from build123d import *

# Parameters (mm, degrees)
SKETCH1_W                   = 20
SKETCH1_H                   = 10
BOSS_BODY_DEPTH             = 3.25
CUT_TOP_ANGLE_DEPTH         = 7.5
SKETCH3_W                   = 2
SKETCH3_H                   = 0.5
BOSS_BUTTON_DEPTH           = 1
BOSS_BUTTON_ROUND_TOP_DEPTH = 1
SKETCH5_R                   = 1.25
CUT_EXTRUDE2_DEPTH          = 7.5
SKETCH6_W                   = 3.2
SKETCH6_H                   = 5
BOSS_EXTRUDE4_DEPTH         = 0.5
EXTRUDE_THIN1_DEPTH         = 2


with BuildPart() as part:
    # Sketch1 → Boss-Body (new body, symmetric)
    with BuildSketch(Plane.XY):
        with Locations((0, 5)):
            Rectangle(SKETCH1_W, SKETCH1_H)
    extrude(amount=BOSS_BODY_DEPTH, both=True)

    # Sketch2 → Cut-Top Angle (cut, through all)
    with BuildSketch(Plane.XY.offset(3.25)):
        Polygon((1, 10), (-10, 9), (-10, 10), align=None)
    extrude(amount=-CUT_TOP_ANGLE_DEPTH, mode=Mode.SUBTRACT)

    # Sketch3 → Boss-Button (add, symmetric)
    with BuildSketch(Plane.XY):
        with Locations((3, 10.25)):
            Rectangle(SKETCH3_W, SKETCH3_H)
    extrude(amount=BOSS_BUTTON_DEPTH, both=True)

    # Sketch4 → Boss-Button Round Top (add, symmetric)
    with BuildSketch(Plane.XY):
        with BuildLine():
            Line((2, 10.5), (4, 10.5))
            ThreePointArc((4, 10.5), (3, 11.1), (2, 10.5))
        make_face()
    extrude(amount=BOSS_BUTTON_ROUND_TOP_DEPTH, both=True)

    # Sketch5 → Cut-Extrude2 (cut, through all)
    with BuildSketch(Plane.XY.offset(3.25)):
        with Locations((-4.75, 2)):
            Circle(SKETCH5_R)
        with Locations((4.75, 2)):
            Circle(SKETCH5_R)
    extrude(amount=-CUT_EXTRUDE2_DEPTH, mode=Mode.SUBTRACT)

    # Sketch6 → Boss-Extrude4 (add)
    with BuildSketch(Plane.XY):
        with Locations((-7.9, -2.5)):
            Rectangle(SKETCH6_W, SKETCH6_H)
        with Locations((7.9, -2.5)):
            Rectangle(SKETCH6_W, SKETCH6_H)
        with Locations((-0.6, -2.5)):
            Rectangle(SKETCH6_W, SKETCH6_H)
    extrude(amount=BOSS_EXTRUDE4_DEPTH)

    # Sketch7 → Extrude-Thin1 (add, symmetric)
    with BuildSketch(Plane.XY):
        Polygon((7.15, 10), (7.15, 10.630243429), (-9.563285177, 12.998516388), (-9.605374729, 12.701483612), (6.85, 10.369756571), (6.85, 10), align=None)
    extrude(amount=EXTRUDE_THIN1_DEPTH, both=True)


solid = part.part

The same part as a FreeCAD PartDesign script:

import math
import FreeCAD as App
import Part
import Sketcher
from FreeCAD import Vector

doc = App.newDocument("Part")
body = doc.addObject("PartDesign::Body", "Body")

# Sketch on XY plane
sketch1 = body.newObject("Sketcher::SketchObject", "Sketch")
sketch1.AttachmentSupport = (doc.getObject("XY_Plane"), [""])
sketch1.MapMode = "FlatFace"
sketch1.addGeometry([
    Part.LineSegment(Vector(-10, 10, 0), Vector(-10, 0, 0)),
    Part.LineSegment(Vector(-10, 0, 0), Vector(10, 0, 0)),
    Part.LineSegment(Vector(10, 0, 0), Vector(10, 10, 0)),
    Part.LineSegment(Vector(10, 10, 0), Vector(-10, 10, 0)),
], False)
sketch1.addConstraint([
    Sketcher.Constraint("Coincident", 0, 2, 1, 1),
    Sketcher.Constraint("Coincident", 1, 2, 2, 1),
    Sketcher.Constraint("Coincident", 2, 2, 3, 1),
    Sketcher.Constraint("Coincident", 3, 2, 0, 1),
    Sketcher.Constraint("Vertical", 0),
    Sketcher.Constraint("Horizontal", 1),
    Sketcher.Constraint("Vertical", 2),
    Sketcher.Constraint("Horizontal", 3),
    Sketcher.Constraint("Symmetric", 0, 2, 1, 2, -1, 1),
    Sketcher.Constraint("DistanceX", 1, 1, 1, 2, 20.0),
    Sketcher.Constraint("DistanceY", 0, 2, 0, 1, 10.0),
])
pad1 = body.newObject("PartDesign::Pad", "Pad")
pad1.Profile = sketch1
pad1.Length = 6.5
pad1.Midplane = True

# Sketch on XY plane
sketch2 = body.newObject("Sketcher::SketchObject", "Sketch001")
sketch2.AttachmentSupport = (doc.getObject("XY_Plane"), [""])
sketch2.MapMode = "FlatFace"
sketch2.AttachmentOffset = App.Placement(Vector(0, 0, 3.25), App.Rotation())
sketch2.addGeometry([
    Part.LineSegment(Vector(-10, 9, 0), Vector(1, 10, 0)),
    Part.LineSegment(Vector(1, 10, 0), Vector(-10, 10, 0)),
    Part.LineSegment(Vector(-10, 10, 0), Vector(-10, 9, 0)),
], False)
sketch2.addConstraint([
    Sketcher.Constraint("Coincident", 0, 2, 1, 1),
    Sketcher.Constraint("Coincident", 1, 2, 2, 1),
    Sketcher.Constraint("Coincident", 2, 2, 0, 1),
    Sketcher.Constraint("Horizontal", 1),
    Sketcher.Constraint("Vertical", 2),
    Sketcher.Constraint("DistanceX", 1, 2, 1, 1, 11.0),
    Sketcher.Constraint("DistanceY", 2, 2, 2, 1, 1.0),
    Sketcher.Constraint("DistanceX", -1, 1, 0, 2, 1.0),
    Sketcher.Constraint("DistanceY", -1, 1, 0, 2, 10.0),
])
pocket1 = body.newObject("PartDesign::Pocket", "Pocket")
pocket1.Profile = sketch2
pocket1.Type = "ThroughAll"

# Sketch on XY plane
sketch3 = body.newObject("Sketcher::SketchObject", "Sketch002")
sketch3.AttachmentSupport = (doc.getObject("XY_Plane"), [""])
sketch3.MapMode = "FlatFace"
sketch3.addGeometry([
    Part.LineSegment(Vector(2, 10.5, 0), Vector(2, 10, 0)),
    Part.LineSegment(Vector(2, 10, 0), Vector(4, 10, 0)),
    Part.LineSegment(Vector(4, 10, 0), Vector(4, 10.5, 0)),
    Part.LineSegment(Vector(4, 10.5, 0), Vector(2, 10.5, 0)),
], False)
sketch3.addConstraint([
    Sketcher.Constraint("Coincident", 0, 2, 1, 1),
    Sketcher.Constraint("Coincident", 1, 2, 2, 1),
    Sketcher.Constraint("Coincident", 2, 2, 3, 1),
    Sketcher.Constraint("Coincident", 3, 2, 0, 1),
    Sketcher.Constraint("Vertical", 0),
    Sketcher.Constraint("Horizontal", 1),
    Sketcher.Constraint("Vertical", 2),
    Sketcher.Constraint("Horizontal", 3),
    Sketcher.Constraint("DistanceX", 1, 1, 1, 2, 2.0),
    Sketcher.Constraint("DistanceY", 0, 2, 0, 1, 0.5),
    Sketcher.Constraint("DistanceX", -1, 1, 0, 2, 2.0),
    Sketcher.Constraint("DistanceY", -1, 1, 0, 2, 10.0),
])
pad2 = body.newObject("PartDesign::Pad", "Pad001")
pad2.Profile = sketch3
pad2.Length = 2
pad2.Midplane = True

# Sketch on XY plane
sketch4 = body.newObject("Sketcher::SketchObject", "Sketch003")
sketch4.AttachmentSupport = (doc.getObject("XY_Plane"), [""])
sketch4.MapMode = "FlatFace"
sketch4.addGeometry([
    Part.LineSegment(Vector(2, 10.5, 0), Vector(4, 10.5, 0)),
    Part.ArcOfCircle(Part.Circle(Vector(3, 10, 0), Vector(0, 0, 1), 1.1), math.radians(28), math.radians(152)),
], False)
sketch4.addConstraint([
    Sketcher.Constraint("Coincident", 0, 1, 1, 2),
    Sketcher.Constraint("Coincident", 1, 1, 0, 2),
    Sketcher.Constraint("Horizontal", 0),
    Sketcher.Constraint("DistanceX", 0, 1, 0, 2, 2.0),
    Sketcher.Constraint("DistanceX", -1, 1, 1, 3, 3.0),
    Sketcher.Constraint("DistanceY", -1, 1, 0, 1, 10.5),
    Sketcher.Constraint("Radius", 1, 1.133333),
])
pad3 = body.newObject("PartDesign::Pad", "Pad002")
pad3.Profile = sketch4
pad3.Length = 2
pad3.Midplane = True

# Sketch on XY plane
sketch5 = body.newObject("Sketcher::SketchObject", "Sketch004")
sketch5.AttachmentSupport = (doc.getObject("XY_Plane"), [""])
sketch5.MapMode = "FlatFace"
sketch5.AttachmentOffset = App.Placement(Vector(0, 0, 3.25), App.Rotation())
sketch5.addGeometry([
    Part.Circle(Vector(-4.8, 2, 0), Vector(0, 0, 1), 1.2),
    Part.Circle(Vector(4.8, 2, 0), Vector(0, 0, 1), 1.2),
], False)
sketch5.addConstraint([
    Sketcher.Constraint("Equal", 0, 1),
    Sketcher.Constraint("Symmetric", 0, 3, 1, 3, -2),
    Sketcher.Constraint("Diameter", 0, 2.5),
    Sketcher.Constraint("DistanceY", -1, 1, 0, 3, 2.0),
    Sketcher.Constraint("DistanceX", 0, 3, 1, 3, 9.5),
])
pocket2 = body.newObject("PartDesign::Pocket", "Pocket001")
pocket2.Profile = sketch5
pocket2.Type = "ThroughAll"

# Sketch on XY plane
sketch6 = body.newObject("Sketcher::SketchObject", "Sketch005")
sketch6.AttachmentSupport = (doc.getObject("XY_Plane"), [""])
sketch6.MapMode = "FlatFace"
sketch6.addGeometry([
    Part.LineSegment(Vector(-9.5, 0, 0), Vector(-9.5, -5, 0)),  # 0
    Part.LineSegment(Vector(-9.5, -5, 0), Vector(-6.3, -5, 0)),  # 1
    Part.LineSegment(Vector(-6.3, -5, 0), Vector(-6.3, 0, 0)),  # 2
    Part.LineSegment(Vector(-6.3, 0, 0), Vector(-9.5, 0, 0)),  # 3
    Part.LineSegment(Vector(6.3, 0, 0), Vector(6.3, -5, 0)),  # 4
    Part.LineSegment(Vector(6.3, -5, 0), Vector(9.5, -5, 0)),  # 5
    Part.LineSegment(Vector(9.5, -5, 0), Vector(9.5, 0, 0)),  # 6
    Part.LineSegment(Vector(9.5, 0, 0), Vector(6.3, 0, 0)),  # 7
    Part.LineSegment(Vector(-2.2, 0, 0), Vector(-2.2, -5, 0)),  # 8
    Part.LineSegment(Vector(-2.2, -5, 0), Vector(1, -5, 0)),  # 9
    Part.LineSegment(Vector(1, -5, 0), Vector(1, 0, 0)),  # 10
    Part.LineSegment(Vector(1, 0, 0), Vector(-2.2, 0, 0)),  # 11
], False)
sketch6.addConstraint([
    Sketcher.Constraint("Coincident", 0, 2, 1, 1),
    Sketcher.Constraint("Coincident", 1, 2, 2, 1),
    Sketcher.Constraint("Coincident", 2, 2, 3, 1),
    Sketcher.Constraint("Coincident", 3, 2, 0, 1),
    Sketcher.Constraint("Coincident", 4, 2, 5, 1),
    Sketcher.Constraint("Coincident", 5, 2, 6, 1),
    Sketcher.Constraint("Coincident", 6, 2, 7, 1),
    Sketcher.Constraint("Coincident", 7, 2, 4, 1),
    Sketcher.Constraint("Coincident", 8, 2, 9, 1),
    Sketcher.Constraint("Coincident", 9, 2, 10, 1),
    Sketcher.Constraint("Coincident", 10, 2, 11, 1),
    Sketcher.Constraint("Coincident", 11, 2, 8, 1),
    Sketcher.Constraint("Vertical", 0),
    Sketcher.Constraint("Horizontal", 1),
    Sketcher.Constraint("Vertical", 2),
    Sketcher.Constraint("Horizontal", 3),
    Sketcher.Constraint("Vertical", 4),
    Sketcher.Constraint("Horizontal", 5),
    Sketcher.Constraint("Vertical", 6),
    Sketcher.Constraint("Horizontal", 7),
    Sketcher.Constraint("Vertical", 8),
    Sketcher.Constraint("Horizontal", 9),
    Sketcher.Constraint("Vertical", 10),
    Sketcher.Constraint("Horizontal", 11),
    Sketcher.Constraint("Symmetric", 3, 2, 6, 2, -1, 1),
    Sketcher.Constraint("Symmetric", 1, 2, 4, 2, -2),
    Sketcher.Constraint("PointOnObject", 2, 2, -1),
    Sketcher.Constraint("PointOnObject", 10, 2, -1),
    Sketcher.Constraint("Horizontal", 5, 2, 8, 2),
    Sketcher.Constraint("Equal", 7, 9),
    Sketcher.Constraint("DistanceY", 0, 2, 0, 1, 5.0),
    Sketcher.Constraint("DistanceX", 1, 1, 1, 2, 3.2),
    Sketcher.Constraint("DistanceX", -1, 1, 9, 2, 1.0),
    Sketcher.Constraint("DistanceX", 0, 2, 5, 2, 19.0),
])
pad4 = body.newObject("PartDesign::Pad", "Pad003")
pad4.Profile = sketch6
pad4.Length = 0.5

# Sketch on XY plane
sketch7 = body.newObject("Sketcher::SketchObject", "Sketch006")
sketch7.AttachmentSupport = (doc.getObject("XY_Plane"), [""])
sketch7.MapMode = "FlatFace"
sketch7.addGeometry([
    Part.LineSegment(Vector(7.15, 10, 0), Vector(7.15, 10.630243, 0)),  # 0
    Part.LineSegment(Vector(7.15, 10.630243, 0), Vector(-9.563285, 12.998516, 0)),  # 1
    Part.LineSegment(Vector(-9.563285, 12.998516, 0), Vector(-9.605375, 12.701484, 0)),  # 2
    Part.LineSegment(Vector(-9.605375, 12.701484, 0), Vector(6.85, 10.369757, 0)),  # 3
    Part.LineSegment(Vector(6.85, 10.369757, 0), Vector(6.85, 10, 0)),  # 4
    Part.LineSegment(Vector(6.85, 10, 0), Vector(7.15, 10, 0)),  # 5
], False)
sketch7.addConstraint([
    Sketcher.Constraint("Coincident", 0, 2, 1, 1),
    Sketcher.Constraint("Coincident", 1, 2, 2, 1),
    Sketcher.Constraint("Coincident", 2, 2, 3, 1),
    Sketcher.Constraint("Coincident", 3, 2, 4, 1),
    Sketcher.Constraint("Coincident", 4, 2, 5, 1),
    Sketcher.Constraint("Coincident", 5, 2, 0, 1),
    Sketcher.Constraint("Vertical", 0),
    Sketcher.Constraint("Vertical", 4),
    Sketcher.Constraint("Horizontal", 5),
    Sketcher.Constraint("DistanceX", 5, 1, 5, 2, 0.3),
    Sketcher.Constraint("DistanceY", -1, 1, 4, 2, 10.0),
    Sketcher.Constraint("Distance", 2, 0.3),
    Sketcher.Constraint("DistanceX", -1, 1, 0, 2, 7.15),
    Sketcher.Constraint("DistanceY", 0, 1, 0, 2, 0.630243),
    Sketcher.Constraint("DistanceY", 4, 2, 4, 1, 0.369757),
    Sketcher.Constraint("DistanceX", 2, 2, 1, 2, 0.04209),
    Sketcher.Constraint("DistanceY", 0, 2, 2, 2, 2.07124),
    Sketcher.Constraint("Distance", 1, 16.880243),
])
pad5 = body.newObject("PartDesign::Pad", "Pad004")
pad5.Profile = sketch7
pad5.Length = 4
pad5.Midplane = True

doc.recompute()
